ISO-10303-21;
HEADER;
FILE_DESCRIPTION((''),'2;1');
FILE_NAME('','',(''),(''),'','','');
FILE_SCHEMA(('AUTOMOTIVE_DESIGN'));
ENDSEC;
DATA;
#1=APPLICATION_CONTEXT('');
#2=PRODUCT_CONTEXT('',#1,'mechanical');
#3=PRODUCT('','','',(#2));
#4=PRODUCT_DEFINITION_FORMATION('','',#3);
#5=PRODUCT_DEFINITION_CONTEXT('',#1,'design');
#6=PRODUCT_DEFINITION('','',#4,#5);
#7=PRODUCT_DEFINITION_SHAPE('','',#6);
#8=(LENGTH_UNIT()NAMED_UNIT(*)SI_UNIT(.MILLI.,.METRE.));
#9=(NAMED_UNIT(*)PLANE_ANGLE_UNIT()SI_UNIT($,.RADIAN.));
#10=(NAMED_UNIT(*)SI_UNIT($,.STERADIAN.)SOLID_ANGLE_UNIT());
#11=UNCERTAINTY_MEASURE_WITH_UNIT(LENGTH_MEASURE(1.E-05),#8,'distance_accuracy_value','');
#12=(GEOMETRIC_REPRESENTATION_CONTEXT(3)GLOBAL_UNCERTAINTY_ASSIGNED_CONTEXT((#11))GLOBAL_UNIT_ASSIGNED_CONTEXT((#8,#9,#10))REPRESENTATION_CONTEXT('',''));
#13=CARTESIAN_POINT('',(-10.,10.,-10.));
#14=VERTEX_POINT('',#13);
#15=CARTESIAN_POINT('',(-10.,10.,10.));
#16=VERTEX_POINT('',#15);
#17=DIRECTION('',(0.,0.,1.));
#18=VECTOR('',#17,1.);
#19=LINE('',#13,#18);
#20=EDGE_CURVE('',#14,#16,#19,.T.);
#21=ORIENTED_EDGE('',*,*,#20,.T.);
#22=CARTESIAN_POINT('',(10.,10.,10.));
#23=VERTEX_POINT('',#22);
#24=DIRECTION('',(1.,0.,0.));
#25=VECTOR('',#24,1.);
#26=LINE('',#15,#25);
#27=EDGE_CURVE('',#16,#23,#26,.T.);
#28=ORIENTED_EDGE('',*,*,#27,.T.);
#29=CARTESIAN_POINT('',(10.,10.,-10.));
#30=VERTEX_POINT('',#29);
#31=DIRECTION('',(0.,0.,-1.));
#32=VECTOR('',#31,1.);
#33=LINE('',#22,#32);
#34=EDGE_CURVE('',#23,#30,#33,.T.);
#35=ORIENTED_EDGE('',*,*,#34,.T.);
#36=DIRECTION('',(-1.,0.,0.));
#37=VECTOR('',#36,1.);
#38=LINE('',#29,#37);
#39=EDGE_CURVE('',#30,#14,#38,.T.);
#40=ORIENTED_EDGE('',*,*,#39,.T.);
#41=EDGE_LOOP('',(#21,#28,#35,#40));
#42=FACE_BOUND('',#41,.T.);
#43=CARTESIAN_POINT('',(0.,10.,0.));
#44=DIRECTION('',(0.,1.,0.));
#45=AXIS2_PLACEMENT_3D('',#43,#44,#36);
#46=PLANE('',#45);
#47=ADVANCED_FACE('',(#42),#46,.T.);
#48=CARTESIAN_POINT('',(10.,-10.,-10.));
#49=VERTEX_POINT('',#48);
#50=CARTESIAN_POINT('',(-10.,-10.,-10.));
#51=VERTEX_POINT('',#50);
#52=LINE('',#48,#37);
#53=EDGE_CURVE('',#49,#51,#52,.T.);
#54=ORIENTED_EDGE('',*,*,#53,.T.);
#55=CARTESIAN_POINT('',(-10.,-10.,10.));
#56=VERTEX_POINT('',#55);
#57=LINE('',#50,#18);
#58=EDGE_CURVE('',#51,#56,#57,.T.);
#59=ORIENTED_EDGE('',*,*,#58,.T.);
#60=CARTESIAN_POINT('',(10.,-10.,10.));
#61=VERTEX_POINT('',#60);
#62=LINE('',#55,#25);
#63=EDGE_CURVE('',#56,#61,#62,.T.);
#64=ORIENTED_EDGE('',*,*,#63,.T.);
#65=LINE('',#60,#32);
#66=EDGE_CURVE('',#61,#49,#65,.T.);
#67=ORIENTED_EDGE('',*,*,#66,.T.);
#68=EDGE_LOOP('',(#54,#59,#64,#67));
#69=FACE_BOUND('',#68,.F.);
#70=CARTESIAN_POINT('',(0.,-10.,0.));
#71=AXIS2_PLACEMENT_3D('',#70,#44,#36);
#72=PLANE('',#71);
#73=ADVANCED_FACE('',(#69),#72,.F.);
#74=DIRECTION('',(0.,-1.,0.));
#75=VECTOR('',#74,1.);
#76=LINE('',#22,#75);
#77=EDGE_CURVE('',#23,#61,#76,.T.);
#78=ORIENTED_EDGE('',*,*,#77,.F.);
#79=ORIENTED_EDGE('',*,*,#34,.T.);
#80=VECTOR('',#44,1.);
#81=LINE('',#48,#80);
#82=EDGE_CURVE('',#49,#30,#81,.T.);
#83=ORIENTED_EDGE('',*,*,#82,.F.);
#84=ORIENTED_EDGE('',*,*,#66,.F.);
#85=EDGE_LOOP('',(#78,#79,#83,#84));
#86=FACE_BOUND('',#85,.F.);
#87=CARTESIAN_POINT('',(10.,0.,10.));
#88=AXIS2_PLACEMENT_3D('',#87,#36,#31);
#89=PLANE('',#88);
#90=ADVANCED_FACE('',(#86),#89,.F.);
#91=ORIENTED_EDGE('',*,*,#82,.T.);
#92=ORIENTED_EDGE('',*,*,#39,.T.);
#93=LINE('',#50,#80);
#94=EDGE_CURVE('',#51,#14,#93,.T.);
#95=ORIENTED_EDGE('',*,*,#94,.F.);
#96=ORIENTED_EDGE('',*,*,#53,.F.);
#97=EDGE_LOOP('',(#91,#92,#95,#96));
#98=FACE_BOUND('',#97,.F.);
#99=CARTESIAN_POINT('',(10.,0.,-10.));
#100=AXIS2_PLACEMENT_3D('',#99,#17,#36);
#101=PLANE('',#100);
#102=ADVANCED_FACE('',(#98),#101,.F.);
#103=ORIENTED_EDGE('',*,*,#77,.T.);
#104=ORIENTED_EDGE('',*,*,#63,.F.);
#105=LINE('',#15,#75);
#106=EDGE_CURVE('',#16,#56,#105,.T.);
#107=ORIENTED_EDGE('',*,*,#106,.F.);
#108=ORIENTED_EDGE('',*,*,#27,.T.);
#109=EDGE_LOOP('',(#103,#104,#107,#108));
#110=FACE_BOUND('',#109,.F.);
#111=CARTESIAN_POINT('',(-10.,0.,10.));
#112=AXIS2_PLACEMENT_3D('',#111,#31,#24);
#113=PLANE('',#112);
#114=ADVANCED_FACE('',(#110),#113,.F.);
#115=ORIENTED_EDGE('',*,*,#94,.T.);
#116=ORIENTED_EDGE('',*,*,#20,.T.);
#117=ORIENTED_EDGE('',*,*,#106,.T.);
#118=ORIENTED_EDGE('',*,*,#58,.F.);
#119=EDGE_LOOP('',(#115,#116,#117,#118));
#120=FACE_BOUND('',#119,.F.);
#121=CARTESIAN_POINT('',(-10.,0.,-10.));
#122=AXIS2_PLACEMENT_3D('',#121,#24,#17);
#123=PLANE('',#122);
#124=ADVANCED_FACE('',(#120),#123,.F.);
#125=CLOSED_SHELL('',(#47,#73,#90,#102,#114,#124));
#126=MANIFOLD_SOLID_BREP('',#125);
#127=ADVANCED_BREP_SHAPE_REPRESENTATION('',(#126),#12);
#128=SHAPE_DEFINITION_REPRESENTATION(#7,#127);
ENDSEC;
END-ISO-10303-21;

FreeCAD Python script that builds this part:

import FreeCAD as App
import Part
import Sketcher
from FreeCAD import Vector

doc = App.newDocument("Part")
body = doc.addObject("PartDesign::Body", "Body")

sketch1 = doc.addObject("Sketcher::SketchObject", "Sketch")
body.addObject(sketch1)
sketch1.AttachmentSupport = (doc.XZ_Plane, [""])
sketch1.MapMode = "FlatFace"
sketch1.addGeometry([
    Part.LineSegment(Vector(10, 10, 0), Vector(10, -10, 0)),
    Part.LineSegment(Vector(10, -10, 0), Vector(-10, -10, 0)),
    Part.LineSegment(Vector(-10, -10, 0), Vector(-10, 10, 0)),
    Part.LineSegment(Vector(-10, 10, 0), Vector(10, 10, 0)),
], False)
sketch1.addConstraint([
    Sketcher.Constraint("Coincident", 0, 2, 1, 1),
    Sketcher.Constraint("Coincident", 1, 2, 2, 1),
    Sketcher.Constraint("Coincident", 2, 2, 3, 1),
    Sketcher.Constraint("Coincident", 3, 2, 0, 1),
    Sketcher.Constraint("Vertical", 0),
    Sketcher.Constraint("Horizontal", 1),
    Sketcher.Constraint("Vertical", 2),
    Sketcher.Constraint("Horizontal", 3),
    Sketcher.Constraint("Symmetric", 0, 2, 2, 2, -1, 1),
    Sketcher.Constraint("Equal", 3, 0),
    Sketcher.Constraint("DistanceX", 1, 2, 1, 1, 20.0),
])
pad1 = doc.addObject("PartDesign::Pad", "Pad")
body.addObject(pad1)
pad1.Profile = sketch1
pad1.Length = 20
pad1.Midplane = True

doc.recompute()
